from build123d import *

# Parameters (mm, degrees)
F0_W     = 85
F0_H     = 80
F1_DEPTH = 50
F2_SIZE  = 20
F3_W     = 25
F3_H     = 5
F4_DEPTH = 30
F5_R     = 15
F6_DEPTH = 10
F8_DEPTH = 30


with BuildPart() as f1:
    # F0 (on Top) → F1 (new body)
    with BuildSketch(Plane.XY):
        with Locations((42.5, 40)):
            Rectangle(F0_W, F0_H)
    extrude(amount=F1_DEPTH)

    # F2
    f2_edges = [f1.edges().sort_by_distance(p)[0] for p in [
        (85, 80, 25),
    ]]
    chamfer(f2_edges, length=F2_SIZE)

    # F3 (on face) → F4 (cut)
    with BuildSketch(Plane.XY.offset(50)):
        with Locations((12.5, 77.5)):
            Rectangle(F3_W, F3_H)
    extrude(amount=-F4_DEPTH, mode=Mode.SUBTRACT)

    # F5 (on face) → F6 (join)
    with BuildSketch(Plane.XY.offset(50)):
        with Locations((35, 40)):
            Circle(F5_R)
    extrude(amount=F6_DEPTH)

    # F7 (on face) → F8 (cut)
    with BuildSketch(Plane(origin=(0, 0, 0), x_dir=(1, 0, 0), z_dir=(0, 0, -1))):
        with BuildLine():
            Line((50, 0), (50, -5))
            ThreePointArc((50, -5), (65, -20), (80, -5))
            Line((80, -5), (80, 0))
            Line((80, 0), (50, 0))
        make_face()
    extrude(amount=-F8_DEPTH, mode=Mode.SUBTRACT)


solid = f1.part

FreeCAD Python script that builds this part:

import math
import FreeCAD as App
import Part
import Sketcher

V = App.Vector
Q = App.Units.Quantity


def edges_at(feature, points):
    """Names of the edges that pass closest to the given points."""
    edges = feature.Shape.Edges
    near = lambda p: min(range(len(edges)), key=lambda i: edges[i].distToShape(Part.Vertex(*p))[0])
    return sorted({f"Edge{near(p) + 1}" for p in points})


def add_polygon(sketch, points):
    """Adds a closed chain of lines whose ends are joined by coincident constraints."""
    first, n = sketch.GeometryCount, len(points)
    for a, b in zip(points, points[1:] + points[:1]):
        sketch.addGeometry(Part.LineSegment(App.Vector(*a, 0), App.Vector(*b, 0)), False)
    for i in range(n):
        sketch.addConstraint(Sketcher.Constraint("Coincident", first + i, 2, first + (i + 1) % n, 1))

doc = App.newDocument("Part")
body = doc.addObject("PartDesign::Body", "Body")

# Sketch on XY plane
sketch1 = body.newObject("Sketcher::SketchObject", "Sketch")
sketch1.AttachmentSupport = (doc.getObject("XY_Plane"), [""])
sketch1.MapMode = "FlatFace"
add_polygon(sketch1, [(0, 80), (0, 0), (85, 0), (85, 80)])  # lines 0-3
sketch1.addConstraint([
    Sketcher.Constraint("Vertical", 0),
    Sketcher.Constraint("Horizontal", 1),
    Sketcher.Constraint("Vertical", 2),
    Sketcher.Constraint("Horizontal", 3),
    Sketcher.Constraint("Coincident", 0, 2, -1, 1),
    Sketcher.Constraint("DistanceX", 1, 1, 1, 2, Q("85 mm")),
    Sketcher.Constraint("DistanceY", 0, 2, 0, 1, Q("80 mm")),
])
pad1 = body.newObject("PartDesign::Pad", "Pad")
pad1.Profile = sketch1
pad1.Length = 50
doc.recompute()

chamfer = body.newObject("PartDesign::Chamfer", "Chamfer")
chamfer.Base = (pad1, edges_at(pad1, [(85, 80, 25)]))
chamfer.Size = 20

# Sketch on XY plane
sketch2 = body.newObject("Sketcher::SketchObject", "Sketch001")
sketch2.AttachmentSupport = (doc.getObject("XY_Plane"), [""])
sketch2.MapMode = "FlatFace"
sketch2.AttachmentOffset = App.Placement(V(0, 0, 50), App.Rotation())
add_polygon(sketch2, [(0, 80), (0, 75), (25, 75), (25, 80)])  # lines 0-3
sketch2.addConstraint([
    Sketcher.Constraint("Vertical", 0),
    Sketcher.Constraint("Horizontal", 1),
    Sketcher.Constraint("Vertical", 2),
    Sketcher.Constraint("Horizontal", 3),
    Sketcher.Constraint("PointOnObject", 0, 2, -2),
    Sketcher.Constraint("DistanceX", 1, 1, 1, 2, Q("25 mm")),
    Sketcher.Constraint("DistanceY", 0, 2, 0, 1, Q("5 mm")),
    Sketcher.Constraint("DistanceY", -1, 1, 0, 2, Q("75 mm")),
])
pocket1 = body.newObject("PartDesign::Pocket", "Pocket")
pocket1.Profile = sketch2
pocket1.Length = 30

# Sketch on XY plane
sketch3 = body.newObject("Sketcher::SketchObject", "Sketch002")
sketch3.AttachmentSupport = (doc.getObject("XY_Plane"), [""])
sketch3.MapMode = "FlatFace"
sketch3.AttachmentOffset = App.Placement(V(0, 0, 50), App.Rotation())
sketch3.addGeometry(Part.Circle(V(35, 40, 0), V(0, 0, 1), 15), False)
sketch3.addConstraint([
    Sketcher.Constraint("Diameter", 0, Q("30 mm")),
    Sketcher.Constraint("DistanceX", -1, 1, 0, 3, Q("35 mm")),
    Sketcher.Constraint("DistanceY", -1, 1, 0, 3, Q("40 mm")),
])
pad2 = body.newObject("PartDesign::Pad", "Pad001")
pad2.Profile = sketch3
pad2.Length = 10

# Sketch on XY plane
sketch4 = body.newObject("Sketcher::SketchObject", "Sketch003")
sketch4.AttachmentSupport = (doc.getObject("XY_Plane"), [""])
sketch4.MapMode = "FlatFace"
sketch4.addGeometry([
    Part.LineSegment(V(50, 0, 0), V(50, 5, 0)),
    Part.ArcOfCircle(Part.Circle(V(65, 5, 0), V(0, 0, 1), 15), math.radians(0), math.radians(180)),
    Part.LineSegment(V(80, 5, 0), V(80, 0, 0)),
    Part.LineSegment(V(80, 0, 0), V(50, 0, 0)),
], False)
sketch4.addConstraint([
    Sketcher.Constraint("Tangent", 0, 2, 1, 2),
    Sketcher.Constraint("Tangent", 1, 1, 2, 1),
    Sketcher.Constraint("Coincident", 2, 2, 3, 1),
    Sketcher.Constraint("Coincident", 3, 2, 0, 1),
    Sketcher.Constraint("Vertical", 0),
    Sketcher.Constraint("Vertical", 2),
    Sketcher.Constraint("Horizontal", 3),
    Sketcher.Constraint("PointOnObject", 2, 2, -1),
    Sketcher.Constraint("Radius", 1, Q("15 mm")),
    Sketcher.Constraint("DistanceY", 0, 1, 0, 2, Q("5 mm")),
    Sketcher.Constraint("DistanceX", -1, 1, 1, 3, Q("65 mm")),
])
pocket2 = body.newObject("PartDesign::Pocket", "Pocket001")
pocket2.Profile = sketch4
pocket2.Length = 30
pocket2.Reversed = True

doc.recompute()
